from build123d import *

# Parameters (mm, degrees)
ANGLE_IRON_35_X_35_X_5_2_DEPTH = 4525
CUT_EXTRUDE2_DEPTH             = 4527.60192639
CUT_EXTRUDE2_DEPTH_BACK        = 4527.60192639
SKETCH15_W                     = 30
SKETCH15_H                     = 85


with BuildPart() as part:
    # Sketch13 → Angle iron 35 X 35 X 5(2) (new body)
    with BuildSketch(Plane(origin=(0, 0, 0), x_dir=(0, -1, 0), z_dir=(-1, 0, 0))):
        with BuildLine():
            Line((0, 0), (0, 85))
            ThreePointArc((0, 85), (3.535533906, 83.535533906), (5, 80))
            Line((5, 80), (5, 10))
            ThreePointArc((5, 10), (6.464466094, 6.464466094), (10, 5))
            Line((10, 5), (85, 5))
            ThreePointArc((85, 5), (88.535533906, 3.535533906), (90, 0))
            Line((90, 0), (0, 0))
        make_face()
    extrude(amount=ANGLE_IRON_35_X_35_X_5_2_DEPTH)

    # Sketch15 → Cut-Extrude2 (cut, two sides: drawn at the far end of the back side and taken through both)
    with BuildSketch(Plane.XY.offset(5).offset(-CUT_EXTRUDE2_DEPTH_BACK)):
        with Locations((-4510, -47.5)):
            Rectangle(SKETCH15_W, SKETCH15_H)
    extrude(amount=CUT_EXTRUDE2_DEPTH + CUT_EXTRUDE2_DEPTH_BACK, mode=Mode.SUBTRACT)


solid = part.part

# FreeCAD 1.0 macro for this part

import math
import FreeCAD as App
import Part
import Sketcher
from FreeCAD import Vector

doc = App.newDocument("Part")
body = doc.addObject("PartDesign::Body", "Body")

# Sketch on YZ plane
sketch1 = doc.addObject("Sketcher::SketchObject", "Sketch")
body.addObject(sketch1)
sketch1.AttachmentSupport = (doc.YZ_Plane, [""])
sketch1.MapMode = "FlatFace"
sketch1.addGeometry([
    Part.LineSegment(Vector(0, 85, 0), Vector(0, 0, 0)),  # 0
    Part.LineSegment(Vector(0, 0, 0), Vector(-90, 0, 0)),  # 1
    Part.ArcOfCircle(Part.Circle(Vector(-85, 0, 0), Vector(0, 0, 1), 5), math.radians(90), math.radians(180)),  # 2
    Part.LineSegment(Vector(-85, 5, 0), Vector(-10, 5, 0)),  # 3
    Part.ArcOfCircle(Part.Circle(Vector(-10, 10, 0), Vector(0, 0, 1), 5), math.radians(-90), math.radians(0)),  # 4
    Part.LineSegment(Vector(-5, 10, 0), Vector(-5, 80, 0)),  # 5
    Part.ArcOfCircle(Part.Circle(Vector(0, 80, 0), Vector(0, 0, 1), 5), math.radians(90), math.radians(180)),  # 6
], False)
sketch1.addConstraint([
    Sketcher.Constraint("Coincident", 0, 2, 1, 1),
    Sketcher.Constraint("Coincident", 1, 2, 2, 2),
    Sketcher.Constraint("Tangent", 2, 1, 3, 1),
    Sketcher.Constraint("Tangent", 3, 2, 4, 1),
    Sketcher.Constraint("Tangent", 4, 2, 5, 1),
    Sketcher.Constraint("Tangent", 5, 2, 6, 2),
    Sketcher.Constraint("Coincident", 6, 1, 0, 1),
    Sketcher.Constraint("Vertical", 0),
    Sketcher.Constraint("Horizontal", 1),
    Sketcher.Constraint("Horizontal", 3),
    Sketcher.Constraint("Vertical", 5),
    Sketcher.Constraint("Coincident", 0, 2, -1, 1),
    Sketcher.Constraint("Equal", 2, 4),
    Sketcher.Constraint("Equal", 4, 6),
    Sketcher.Constraint("PointOnObject", 2, 3, -1),
    Sketcher.Constraint("PointOnObject", 6, 3, -2),
    Sketcher.Constraint("Radius", 2, 5.0),
    Sketcher.Constraint("DistanceX", 1, 2, 1, 1, 90.0),
    Sketcher.Constraint("DistanceY", 0, 2, 0, 1, 85.0),
])
pad1 = doc.addObject("PartDesign::Pad", "Pad")
body.addObject(pad1)
pad1.Profile = sketch1
pad1.Length = 4525
pad1.Reversed = True

# Sketch on XY plane
sketch2 = doc.addObject("Sketcher::SketchObject", "Sketch001")
body.addObject(sketch2)
sketch2.AttachmentSupport = (doc.XY_Plane, [""])
sketch2.MapMode = "FlatFace"
sketch2.AttachmentOffset = App.Placement(Vector(0, 0, 5), App.Rotation())
sketch2.addGeometry([
    Part.LineSegment(Vector(-4525, -5, 0), Vector(-4525, -90, 0)),
    Part.LineSegment(Vector(-4525, -90, 0), Vector(-4495, -90, 0)),
    Part.LineSegment(Vector(-4495, -90, 0), Vector(-4495, -5, 0)),
    Part.LineSegment(Vector(-4495, -5, 0), Vector(-4525, -5, 0)),
], False)
sketch2.addConstraint([
    Sketcher.Constraint("Coincident", 0, 2, 1, 1),
    Sketcher.Constraint("Coincident", 1, 2, 2, 1),
    Sketcher.Constraint("Coincident", 2, 2, 3, 1),
    Sketcher.Constraint("Coincident", 3, 2, 0, 1),
    Sketcher.Constraint("Vertical", 0),
    Sketcher.Constraint("Horizontal", 1),
    Sketcher.Constraint("Vertical", 2),
    Sketcher.Constraint("Horizontal", 3),
    Sketcher.Constraint("DistanceX", 1, 1, 1, 2, 30.0),
    Sketcher.Constraint("DistanceY", 0, 2, 0, 1, 85.0),
    Sketcher.Constraint("DistanceX", 0, 2, -1, 1, 4525.0),
    Sketcher.Constraint("DistanceY", 0, 2, -1, 1, 90.0),
])
pocket1 = doc.addObject("PartDesign::Pocket", "Pocket")
body.addObject(pocket1)
pocket1.Profile = sketch2
pocket1.Type = "ThroughAll"
pocket1.Midplane = True

doc.recompute()
